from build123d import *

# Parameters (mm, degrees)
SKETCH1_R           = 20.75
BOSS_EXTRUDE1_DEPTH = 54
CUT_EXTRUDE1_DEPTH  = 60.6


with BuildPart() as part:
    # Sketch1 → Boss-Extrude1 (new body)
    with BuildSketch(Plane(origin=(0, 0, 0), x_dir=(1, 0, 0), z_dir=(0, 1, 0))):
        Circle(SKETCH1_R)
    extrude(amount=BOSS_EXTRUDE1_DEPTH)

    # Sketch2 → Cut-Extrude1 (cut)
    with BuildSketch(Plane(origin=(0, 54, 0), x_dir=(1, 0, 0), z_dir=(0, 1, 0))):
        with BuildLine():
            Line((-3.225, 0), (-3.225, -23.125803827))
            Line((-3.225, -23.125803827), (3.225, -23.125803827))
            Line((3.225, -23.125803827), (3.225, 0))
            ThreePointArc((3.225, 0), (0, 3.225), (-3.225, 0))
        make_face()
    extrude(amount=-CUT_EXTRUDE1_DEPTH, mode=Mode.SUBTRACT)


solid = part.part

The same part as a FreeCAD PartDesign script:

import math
import FreeCAD as App
import Part
import Sketcher

doc = App.newDocument("Part")
body = doc.addObject("PartDesign::Body", "Body")

# Sketch on XZ plane
sketch1 = body.newObject("Sketcher::SketchObject", "Sketch")
sketch1.AttachmentSupport = (doc.getObject("XZ_Plane"), [""])
sketch1.MapMode = "FlatFace"
sketch1.addGeometry(Part.Circle(App.Vector(0, 0, 0), App.Vector(0, 0, 1), 20.75), False)
sketch1.addConstraint([
    Sketcher.Constraint("Coincident", 0, 3, -1, 1),
    Sketcher.Constraint("Diameter", 0, 41.5),
])
pad1 = body.newObject("PartDesign::Pad", "Pad")
pad1.Profile = sketch1
pad1.Length = 54
pad1.Reversed = True

# Sketch on XZ plane
sketch2 = body.newObject("Sketcher::SketchObject", "Sketch001")
sketch2.AttachmentSupport = (doc.getObject("XZ_Plane"), [""])
sketch2.MapMode = "FlatFace"
sketch2.AttachmentOffset = App.Placement(App.Vector(0, 0, -54), App.Rotation())
sketch2.addGeometry([
    Part.LineSegment(App.Vector(-3.225, 0, 0), App.Vector(-3.225, 23.125804, 0)),
    Part.LineSegment(App.Vector(-3.225, 23.125804, 0), App.Vector(3.225, 23.125804, 0)),
    Part.LineSegment(App.Vector(3.225, 23.125804, 0), App.Vector(3.225, 0, 0)),
    Part.ArcOfCircle(Part.Circle(App.Vector(0, 0, 0), App.Vector(0, 0, 1), 3.225), math.radians(180), math.radians(360)),
], False)
sketch2.addConstraint([
    Sketcher.Constraint("Coincident", 0, 2, 1, 1),
    Sketcher.Constraint("Coincident", 1, 2, 2, 1),
    Sketcher.Constraint("Tangent", 2, 2, 3, 2),
    Sketcher.Constraint("Tangent", 3, 1, 0, 1),
    Sketcher.Constraint("Vertical", 0),
    Sketcher.Constraint("Horizontal", 1),
    Sketcher.Constraint("Vertical", 2),
    Sketcher.Constraint("Coincident", 3, 3, -1, 1),
    Sketcher.Constraint("Radius", 3, 3.225),
    Sketcher.Constraint("DistanceY", 0, 1, 0, 2, 23.125804),
])
pocket1 = body.newObject("PartDesign::Pocket", "Pocket")
pocket1.Profile = sketch2
pocket1.Length = 60.6
pocket1.Reversed = True

doc.recompute()
